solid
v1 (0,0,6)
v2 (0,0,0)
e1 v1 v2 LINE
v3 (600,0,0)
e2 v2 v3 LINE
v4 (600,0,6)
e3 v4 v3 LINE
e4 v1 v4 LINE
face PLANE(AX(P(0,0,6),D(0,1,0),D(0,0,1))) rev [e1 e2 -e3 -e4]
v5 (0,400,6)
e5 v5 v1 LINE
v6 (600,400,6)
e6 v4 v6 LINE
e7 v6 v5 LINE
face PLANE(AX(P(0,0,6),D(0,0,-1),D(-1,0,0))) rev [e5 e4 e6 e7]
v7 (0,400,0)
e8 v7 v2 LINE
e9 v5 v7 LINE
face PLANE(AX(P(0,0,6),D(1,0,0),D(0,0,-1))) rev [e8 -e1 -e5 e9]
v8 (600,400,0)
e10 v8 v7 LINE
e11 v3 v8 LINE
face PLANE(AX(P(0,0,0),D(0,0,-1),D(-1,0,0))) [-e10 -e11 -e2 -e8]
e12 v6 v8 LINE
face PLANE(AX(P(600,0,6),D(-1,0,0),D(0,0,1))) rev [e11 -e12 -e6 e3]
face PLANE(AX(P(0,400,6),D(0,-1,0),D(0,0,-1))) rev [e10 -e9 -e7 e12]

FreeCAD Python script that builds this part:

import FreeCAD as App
import Part
import Sketcher
from FreeCAD import Vector
Q = App.Units.Quantity


def add_polygon(sketch, points):
    """Adds a closed chain of lines whose ends are joined by coincident constraints."""
    first, n = sketch.GeometryCount, len(points)
    for a, b in zip(points, points[1:] + points[:1]):
        sketch.addGeometry(Part.LineSegment(App.Vector(*a, 0), App.Vector(*b, 0)), False)
    for i in range(n):
        sketch.addConstraint(Sketcher.Constraint("Coincident", first + i, 2, first + (i + 1) % n, 1))

doc = App.newDocument("Part")
params = doc.addObject("Spreadsheet::Sheet", "Params")
for row, (alias, value) in enumerate([
    ("sketch1_width", "600 mm"),
    ("sketch1_height", "400 mm"),
    ("pad1_length", "6 mm"),
], start=1):
    params.set(f"A{row}", alias)
    params.set(f"B{row}", "=" + value)
    params.setAlias(f"B{row}", alias)

body = doc.addObject("PartDesign::Body", "Body")

sketch1 = doc.addObject("Sketcher::SketchObject", "Sketch")
body.addObject(sketch1)
sketch1.AttachmentSupport = (doc.XY_Plane, [""])
sketch1.MapMode = "FlatFace"
add_polygon(sketch1, [(0, 400), (0, 0), (600, 0), (600, 400)])
sketch1.addConstraint(Sketcher.Constraint("Vertical", 0))
sketch1.addConstraint(Sketcher.Constraint("Horizontal", 1))
sketch1.addConstraint(Sketcher.Constraint("Vertical", 2))
sketch1.addConstraint(Sketcher.Constraint("Horizontal", 3))
sketch1.addConstraint(Sketcher.Constraint("Coincident", 0, 2, -1, 1))
sketch1.addConstraint(Sketcher.Constraint("DistanceX", 1, 1, 1, 2, Q("600 mm")))
sketch1.addConstraint(Sketcher.Constraint("DistanceY", 0, 2, 0, 1, Q("400 mm")))
sketch1.setExpression("Constraints[9]", "Params.sketch1_width")
sketch1.setExpression("Constraints[10]", "Params.sketch1_height")
pad1 = doc.addObject("PartDesign::Pad", "Pad")
body.addObject(pad1)
pad1.Profile = sketch1
pad1.setExpression("Length", "Params.pad1_length")

doc.recompute()
